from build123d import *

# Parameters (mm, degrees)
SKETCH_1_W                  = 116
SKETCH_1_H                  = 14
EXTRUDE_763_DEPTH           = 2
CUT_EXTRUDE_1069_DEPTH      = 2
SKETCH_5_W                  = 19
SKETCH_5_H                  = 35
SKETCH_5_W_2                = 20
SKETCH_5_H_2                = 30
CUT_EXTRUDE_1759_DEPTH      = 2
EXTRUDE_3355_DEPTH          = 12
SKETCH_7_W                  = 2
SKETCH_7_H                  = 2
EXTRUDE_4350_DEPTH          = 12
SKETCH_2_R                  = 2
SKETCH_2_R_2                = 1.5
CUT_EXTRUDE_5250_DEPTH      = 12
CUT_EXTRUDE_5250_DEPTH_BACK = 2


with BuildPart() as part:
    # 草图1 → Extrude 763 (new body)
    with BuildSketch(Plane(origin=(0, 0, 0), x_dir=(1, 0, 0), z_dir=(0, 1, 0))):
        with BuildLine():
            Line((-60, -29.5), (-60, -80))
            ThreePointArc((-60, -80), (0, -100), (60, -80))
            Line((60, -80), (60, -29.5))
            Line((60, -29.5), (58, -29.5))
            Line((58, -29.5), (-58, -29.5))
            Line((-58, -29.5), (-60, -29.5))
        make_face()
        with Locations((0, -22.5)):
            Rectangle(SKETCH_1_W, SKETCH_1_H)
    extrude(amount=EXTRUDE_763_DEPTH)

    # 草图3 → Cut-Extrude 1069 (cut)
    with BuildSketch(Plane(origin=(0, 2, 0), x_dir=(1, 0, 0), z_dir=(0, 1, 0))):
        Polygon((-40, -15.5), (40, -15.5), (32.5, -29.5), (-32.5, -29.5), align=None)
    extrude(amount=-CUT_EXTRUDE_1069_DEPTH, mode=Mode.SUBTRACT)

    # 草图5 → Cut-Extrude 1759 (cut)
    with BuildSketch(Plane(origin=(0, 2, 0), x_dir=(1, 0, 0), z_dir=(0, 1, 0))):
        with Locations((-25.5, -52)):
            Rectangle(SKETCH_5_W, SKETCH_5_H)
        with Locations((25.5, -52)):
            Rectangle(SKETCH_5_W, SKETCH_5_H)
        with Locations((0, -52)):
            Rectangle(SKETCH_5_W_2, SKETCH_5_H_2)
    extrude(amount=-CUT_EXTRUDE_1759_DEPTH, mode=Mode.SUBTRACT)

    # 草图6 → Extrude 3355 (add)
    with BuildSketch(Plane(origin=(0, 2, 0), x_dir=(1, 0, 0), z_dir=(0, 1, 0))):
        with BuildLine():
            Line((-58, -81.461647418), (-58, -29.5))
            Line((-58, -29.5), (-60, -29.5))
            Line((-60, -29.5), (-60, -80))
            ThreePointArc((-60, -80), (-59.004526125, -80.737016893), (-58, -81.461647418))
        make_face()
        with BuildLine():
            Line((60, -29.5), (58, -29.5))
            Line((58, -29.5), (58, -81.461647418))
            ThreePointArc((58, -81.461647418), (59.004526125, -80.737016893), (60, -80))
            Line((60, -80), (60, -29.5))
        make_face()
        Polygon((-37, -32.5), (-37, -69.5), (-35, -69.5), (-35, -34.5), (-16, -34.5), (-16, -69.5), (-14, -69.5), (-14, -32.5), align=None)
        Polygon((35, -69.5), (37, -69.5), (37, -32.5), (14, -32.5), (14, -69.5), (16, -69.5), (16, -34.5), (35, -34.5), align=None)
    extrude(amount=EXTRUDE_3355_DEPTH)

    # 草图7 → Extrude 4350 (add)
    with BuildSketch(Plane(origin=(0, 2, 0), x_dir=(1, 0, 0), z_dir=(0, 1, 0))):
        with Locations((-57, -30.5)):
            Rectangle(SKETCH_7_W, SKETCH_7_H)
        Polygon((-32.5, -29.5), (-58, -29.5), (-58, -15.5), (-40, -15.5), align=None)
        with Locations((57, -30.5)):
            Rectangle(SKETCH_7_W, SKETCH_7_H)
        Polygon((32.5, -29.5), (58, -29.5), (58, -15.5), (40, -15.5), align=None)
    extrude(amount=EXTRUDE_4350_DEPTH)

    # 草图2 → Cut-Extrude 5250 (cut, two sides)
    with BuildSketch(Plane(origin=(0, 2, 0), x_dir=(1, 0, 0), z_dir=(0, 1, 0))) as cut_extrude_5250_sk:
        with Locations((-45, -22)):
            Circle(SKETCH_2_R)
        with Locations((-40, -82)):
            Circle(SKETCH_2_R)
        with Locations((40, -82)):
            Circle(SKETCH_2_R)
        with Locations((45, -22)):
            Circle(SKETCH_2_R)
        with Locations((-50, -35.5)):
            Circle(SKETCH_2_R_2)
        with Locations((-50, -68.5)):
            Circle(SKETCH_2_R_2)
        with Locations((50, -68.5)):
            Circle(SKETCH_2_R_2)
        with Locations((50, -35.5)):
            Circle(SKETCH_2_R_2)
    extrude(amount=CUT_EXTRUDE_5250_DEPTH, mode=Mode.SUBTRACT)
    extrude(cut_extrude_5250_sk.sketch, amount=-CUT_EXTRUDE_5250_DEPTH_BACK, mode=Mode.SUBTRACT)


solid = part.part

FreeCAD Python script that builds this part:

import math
import FreeCAD as App
import Part
import Sketcher
Q = App.Units.Quantity

doc = App.newDocument("Part")
params = doc.addObject("Spreadsheet::Sheet", "Params")
for row, (alias, value) in enumerate([
    ("sketch1_radius", "100 mm"),
    ("sketch1_width", "2 mm"),
    ("sketch1_width2", "116 mm"),
    ("sketch1_height", "14 mm"),
    ("sketch1_height2", "50.5 mm"),
    ("pad1_length", "2 mm"),
    ("sketch2_width", "80 mm"),
    ("sketch2_width2", "65 mm"),
    ("pocket1_length", "2 mm"),
    ("sketch3_width", "19 mm"),
    ("sketch3_width2", "20 mm"),
    ("sketch3_height", "35 mm"),
    ("sketch3_height2", "30 mm"),
    ("pocket2_length", "2 mm"),
    ("sketch4_radius", "100.000001 mm"),
    ("sketch4_width", "2 mm"),
    ("sketch4_width2", "19 mm"),
    ("sketch4_height", "37 mm"),
    ("sketch4_height2", "35 mm"),
    ("pad2_length", "12 mm"),
    ("sketch5_width", "2 mm"),
    ("sketch5_width2", "18 mm"),
    ("sketch5_height", "16 mm"),
    ("sketch5_width3", "23.5 mm"),
    ("pad3_length", "12 mm"),
    ("sketch6_diameter", "4 mm"),
    ("sketch6_diameter2", "3 mm"),
], start=1):
    params.set(f"A{row}", alias)
    params.set(f"B{row}", "=" + value)
    params.setAlias(f"B{row}", alias)

body = doc.addObject("PartDesign::Body", "Body")

# Sketch on XZ plane
sketch1 = body.newObject("Sketcher::SketchObject", "Sketch")
sketch1.AttachmentSupport = (doc.getObject("XZ_Plane"), [""])
sketch1.MapMode = "FlatFace"
sketch1.addGeometry([
    Part.LineSegment(App.Vector(-60, 29.5, 0), App.Vector(-60, 80, 0)),  # 0
    Part.ArcOfCircle(Part.Circle(App.Vector(0, 0, 0), App.Vector(0, 0, 1), 100), math.radians(53), math.radians(127)),  # 1
    Part.LineSegment(App.Vector(60, 80, 0), App.Vector(60, 29.5, 0)),  # 2
    Part.LineSegment(App.Vector(60, 29.5, 0), App.Vector(58, 29.5, 0)),  # 3
    Part.LineSegment(App.Vector(58, 29.5, 0), App.Vector(58, 15.5, 0)),  # 4
    Part.LineSegment(App.Vector(58, 15.5, 0), App.Vector(-58, 15.5, 0)),  # 5
    Part.LineSegment(App.Vector(-58, 15.5, 0), App.Vector(-58, 29.5, 0)),  # 6
    Part.LineSegment(App.Vector(-58, 29.5, 0), App.Vector(-60, 29.5, 0)),  # 7
], False)
sketch1.addConstraint([
    Sketcher.Constraint("Coincident", 0, 2, 1, 2),
    Sketcher.Constraint("Coincident", 1, 1, 2, 1),
    Sketcher.Constraint("Coincident", 2, 2, 3, 1),
    Sketcher.Constraint("Coincident", 3, 2, 4, 1),
    Sketcher.Constraint("Coincident", 4, 2, 5, 1),
    Sketcher.Constraint("Coincident", 5, 2, 6, 1),
    Sketcher.Constraint("Coincident", 6, 2, 7, 1),
    Sketcher.Constraint("Coincident", 7, 2, 0, 1),
    Sketcher.Constraint("Vertical", 0),
    Sketcher.Constraint("Vertical", 2),
    Sketcher.Constraint("Horizontal", 3),
    Sketcher.Constraint("Vertical", 4),
    Sketcher.Constraint("Horizontal", 5),
    Sketcher.Constraint("Vertical", 6),
    Sketcher.Constraint("Horizontal", 7),
    Sketcher.Constraint("Coincident", 1, 3, -1, 1),
    Sketcher.Constraint("Symmetric", 3, 2, 6, 2, -2),
    Sketcher.Constraint("Horizontal", 0, 2, 1, 1),
    Sketcher.Constraint("Radius", 1, Q("100 mm")),
    Sketcher.Constraint("DistanceX", 3, 2, 3, 1, Q("2 mm")),
    Sketcher.Constraint("DistanceX", 5, 2, 5, 1, Q("116 mm")),
    Sketcher.Constraint("DistanceY", 4, 2, 4, 1, Q("14 mm")),
    Sketcher.Constraint("DistanceY", 0, 1, 0, 2, Q("50.5 mm")),
])
sketch1.setExpression("Constraints[18]", "Params.sketch1_radius")
sketch1.setExpression("Constraints[19]", "Params.sketch1_width")
sketch1.setExpression("Constraints[20]", "Params.sketch1_width2")
sketch1.setExpression("Constraints[21]", "Params.sketch1_height")
sketch1.setExpression("Constraints[22]", "Params.sketch1_height2")
pad1 = body.newObject("PartDesign::Pad", "Pad")
pad1.Profile = sketch1
pad1.setExpression("Length", "Params.pad1_length")
pad1.Reversed = True

# Sketch on XZ plane
sketch2 = body.newObject("Sketcher::SketchObject", "Sketch001")
sketch2.AttachmentSupport = (doc.getObject("XZ_Plane"), [""])
sketch2.MapMode = "FlatFace"
sketch2.AttachmentOffset = App.Placement(App.Vector(0, 0, -2), App.Rotation())
sketch2.addGeometry([
    Part.LineSegment(App.Vector(40, 16, 0), App.Vector(-40, 16, 0)),
    Part.LineSegment(App.Vector(-40, 16, 0), App.Vector(-32, 30, 0)),
    Part.LineSegment(App.Vector(-32, 30, 0), App.Vector(32, 30, 0)),
    Part.LineSegment(App.Vector(32, 30, 0), App.Vector(40, 16, 0)),
], False)
sketch2.addConstraint([
    Sketcher.Constraint("Coincident", 0, 2, 1, 1),
    Sketcher.Constraint("Coincident", 1, 2, 2, 1),
    Sketcher.Constraint("Coincident", 2, 2, 3, 1),
    Sketcher.Constraint("Coincident", 3, 2, 0, 1),
    Sketcher.Constraint("Horizontal", 0),
    Sketcher.Constraint("Horizontal", 2),
    Sketcher.Constraint("Equal", 1, 3),
    Sketcher.Constraint("DistanceX", 0, 2, 0, 1, Q("80 mm")),
    Sketcher.Constraint("DistanceX", 2, 1, 2, 2, Q("65 mm")),
    Sketcher.Constraint("DistanceX", 0, 2, -1, 1, Q("40 mm")),
    Sketcher.Constraint("DistanceY", 0, 2, 1, 2, Q("14 mm")),
    Sketcher.Constraint("DistanceY", -1, 1, 0, 2, Q("15.5 mm")),
])
sketch2.setExpression("Constraints[7]", "Params.sketch2_width")
sketch2.setExpression("Constraints[8]", "Params.sketch2_width2")
pocket1 = body.newObject("PartDesign::Pocket", "Pocket")
pocket1.Profile = sketch2
pocket1.setExpression("Length", "Params.pocket1_length")
pocket1.Reversed = True

# Sketch on XZ plane
sketch3 = body.newObject("Sketcher::SketchObject", "Sketch002")
sketch3.AttachmentSupport = (doc.getObject("XZ_Plane"), [""])
sketch3.MapMode = "FlatFace"
sketch3.AttachmentOffset = App.Placement(App.Vector(0, 0, -2), App.Rotation())
sketch3.addGeometry([
    Part.LineSegment(App.Vector(-35, 34, 0), App.Vector(-35, 70, 0)),  # 0
    Part.LineSegment(App.Vector(-35, 70, 0), App.Vector(-16, 70, 0)),  # 1
    Part.LineSegment(App.Vector(-16, 70, 0), App.Vector(-16, 34, 0)),  # 2
    Part.LineSegment(App.Vector(-16, 34, 0), App.Vector(-35, 34, 0)),  # 3
    Part.LineSegment(App.Vector(16, 34, 0), App.Vector(16, 70, 0)),  # 4
    Part.LineSegment(App.Vector(16, 70, 0), App.Vector(35, 70, 0)),  # 5
    Part.LineSegment(App.Vector(35, 70, 0), App.Vector(35, 34, 0)),  # 6
    Part.LineSegment(App.Vector(35, 34, 0), App.Vector(16, 34, 0)),  # 7
    Part.LineSegment(App.Vector(-10, 37, 0), App.Vector(-10, 67, 0)),  # 8
    Part.LineSegment(App.Vector(-10, 67, 0), App.Vector(10, 67, 0)),  # 9
    Part.LineSegment(App.Vector(10, 67, 0), App.Vector(10, 37, 0)),  # 10
    Part.LineSegment(App.Vector(10, 37, 0), App.Vector(-10, 37, 0)),  # 11
], False)
sketch3.addConstraint([
    Sketcher.Constraint("Coincident", 0, 2, 1, 1),
    Sketcher.Constraint("Coincident", 1, 2, 2, 1),
    Sketcher.Constraint("Coincident", 2, 2, 3, 1),
    Sketcher.Constraint("Coincident", 3, 2, 0, 1),
    Sketcher.Constraint("Coincident", 4, 2, 5, 1),
    Sketcher.Constraint("Coincident", 5, 2, 6, 1),
    Sketcher.Constraint("Coincident", 6, 2, 7, 1),
    Sketcher.Constraint("Coincident", 7, 2, 4, 1),
    Sketcher.Constraint("Coincident", 8, 2, 9, 1),
    Sketcher.Constraint("Coincident", 9, 2, 10, 1),
    Sketcher.Constraint("Coincident", 10, 2, 11, 1),
    Sketcher.Constraint("Coincident", 11, 2, 8, 1),
    Sketcher.Constraint("Vertical", 0),
    Sketcher.Constraint("Horizontal", 1),
    Sketcher.Constraint("Vertical", 2),
    Sketcher.Constraint("Horizontal", 3),
    Sketcher.Constraint("Vertical", 4),
    Sketcher.Constraint("Horizontal", 5),
    Sketcher.Constraint("Vertical", 6),
    Sketcher.Constraint("Horizontal", 7),
    Sketcher.Constraint("Vertical", 8),
    Sketcher.Constraint("Horizontal", 9),
    Sketcher.Constraint("Vertical", 10),
    Sketcher.Constraint("Horizontal", 11),
    Sketcher.Constraint("Symmetric", 1, 2, 4, 2, -2),
    Sketcher.Constraint("Symmetric", 3, 2, 6, 2, -2),
    Sketcher.Constraint("DistanceX", 1, 1, 1, 2, Q("19 mm")),
    Sketcher.Constraint("DistanceX", 9, 1, 9, 2, Q("20 mm")),
    Sketcher.Constraint("DistanceY", 0, 1, 0, 2, Q("35 mm")),
    Sketcher.Constraint("DistanceY", 8, 1, 8, 2, Q("30 mm")),
    Sketcher.Constraint("DistanceX", 0, 2, -1, 1, Q("35 mm")),
    Sketcher.Constraint("DistanceX", 8, 2, -1, 1, Q("10 mm")),
    Sketcher.Constraint("DistanceY", -1, 1, 8, 2, Q("67 mm")),
    Sketcher.Constraint("DistanceY", -1, 1, 0, 2, Q("69.5 mm")),
])
sketch3.setExpression("Constraints[26]", "Params.sketch3_width")
sketch3.setExpression("Constraints[27]", "Params.sketch3_width2")
sketch3.setExpression("Constraints[28]", "Params.sketch3_height")
sketch3.setExpression("Constraints[29]", "Params.sketch3_height2")
pocket2 = body.newObject("PartDesign::Pocket", "Pocket001")
pocket2.Profile = sketch3
pocket2.setExpression("Length", "Params.pocket2_length")
pocket2.Reversed = True

# Sketch on XZ plane
sketch4 = body.newObject("Sketcher::SketchObject", "Sketch003")
sketch4.AttachmentSupport = (doc.getObject("XZ_Plane"), [""])
sketch4.MapMode = "FlatFace"
sketch4.AttachmentOffset = App.Placement(App.Vector(0, 0, -2), App.Rotation())
sketch4.addGeometry([
    Part.LineSegment(App.Vector(-58, 81.5, 0), App.Vector(-58, 29.5, 0)),  # 0
    Part.LineSegment(App.Vector(-58, 29.5, 0), App.Vector(-60, 29.5, 0)),  # 1
    Part.LineSegment(App.Vector(-60, 29.5, 0), App.Vector(-60, 80, 0)),  # 2
    Part.ArcOfCircle(Part.Circle(App.Vector(0, 0, 0), App.Vector(0, 0, 1), 100), math.radians(125.45), math.radians(126.87)),  # 3
    Part.LineSegment(App.Vector(60, 29.5, 0), App.Vector(58, 29.5, 0)),  # 4
    Part.LineSegment(App.Vector(58, 29.5, 0), App.Vector(58, 81.5, 0)),  # 5
    Part.ArcOfCircle(Part.Circle(App.Vector(0, 0, 0), App.Vector(0, 0, 1), 100), math.radians(53.13), math.radians(54.55)),  # 6
    Part.LineSegment(App.Vector(60, 80, 0), App.Vector(60, 29.5, 0)),  # 7
    Part.LineSegment(App.Vector(-37, 32.5, 0), App.Vector(-37, 69.5, 0)),  # 8
    Part.LineSegment(App.Vector(-37, 69.5, 0), App.Vector(-35, 69.5, 0)),  # 9
    Part.LineSegment(App.Vector(-35, 69.5, 0), App.Vector(-35, 34.5, 0)),  # 10
    Part.LineSegment(App.Vector(-35, 34.5, 0), App.Vector(-16, 34.5, 0)),  # 11
    Part.LineSegment(App.Vector(-16, 34.5, 0), App.Vector(-16, 69.5, 0)),  # 12
    Part.LineSegment(App.Vector(-16, 69.5, 0), App.Vector(-14, 69.5, 0)),  # 13
    Part.LineSegment(App.Vector(-14, 69.5, 0), App.Vector(-14, 32.5, 0)),  # 14
    Part.LineSegment(App.Vector(-14, 32.5, 0), App.Vector(-37, 32.5, 0)),  # 15
    Part.LineSegment(App.Vector(35, 69.5, 0), App.Vector(37, 69.5, 0)),  # 16
    Part.LineSegment(App.Vector(37, 69.5, 0), App.Vector(37, 32.5, 0)),  # 17
    Part.LineSegment(App.Vector(37, 32.5, 0), App.Vector(14, 32.5, 0)),  # 18
    Part.LineSegment(App.Vector(14, 32.5, 0), App.Vector(14, 69.5, 0)),  # 19
    Part.LineSegment(App.Vector(14, 69.5, 0), App.Vector(16, 69.5, 0)),  # 20
    Part.LineSegment(App.Vector(16, 69.5, 0), App.Vector(16, 34.5, 0)),  # 21
    Part.LineSegment(App.Vector(16, 34.5, 0), App.Vector(35, 34.5, 0)),  # 22
    Part.LineSegment(App.Vector(35, 34.5, 0), App.Vector(35, 69.5, 0)),  # 23
], False)
sketch4.addConstraint([
    Sketcher.Constraint("Coincident", 0, 2, 1, 1),
    Sketcher.Constraint("Coincident", 1, 2, 2, 1),
    Sketcher.Constraint("Coincident", 2, 2, 3, 2),
    Sketcher.Constraint("Coincident", 3, 1, 0, 1),
    Sketcher.Constraint("Coincident", 4, 2, 5, 1),
    Sketcher.Constraint("Coincident", 5, 2, 6, 2),
    Sketcher.Constraint("Coincident", 6, 1, 7, 1),
    Sketcher.Constraint("Coincident", 7, 2, 4, 1),
    Sketcher.Constraint("Coincident", 8, 2, 9, 1),
    Sketcher.Constraint("Coincident", 9, 2, 10, 1),
    Sketcher.Constraint("Coincident", 10, 2, 11, 1),
    Sketcher.Constraint("Coincident", 11, 2, 12, 1),
    Sketcher.Constraint("Coincident", 12, 2, 13, 1),
    Sketcher.Constraint("Coincident", 13, 2, 14, 1),
    Sketcher.Constraint("Coincident", 14, 2, 15, 1),
    Sketcher.Constraint("Coincident", 15, 2, 8, 1),
    Sketcher.Constraint("Coincident", 16, 2, 17, 1),
    Sketcher.Constraint("Coincident", 17, 2, 18, 1),
    Sketcher.Constraint("Coincident", 18, 2, 19, 1),
    Sketcher.Constraint("Coincident", 19, 2, 20, 1),
    Sketcher.Constraint("Coincident", 20, 2, 21, 1),
    Sketcher.Constraint("Coincident", 21, 2, 22, 1),
    Sketcher.Constraint("Coincident", 22, 2, 23, 1),
    Sketcher.Constraint("Coincident", 23, 2, 16, 1),
    Sketcher.Constraint("Vertical", 0),
    Sketcher.Constraint("Horizontal", 1),
    Sketcher.Constraint("Vertical", 2),
    Sketcher.Constraint("Horizontal", 4),
    Sketcher.Constraint("Vertical", 5),
    Sketcher.Constraint("Vertical", 7),
    Sketcher.Constraint("Vertical", 8),
    Sketcher.Constraint("Horizontal", 9),
    Sketcher.Constraint("Vertical", 10),
    Sketcher.Constraint("Horizontal", 11),
    Sketcher.Constraint("Vertical", 12),
    Sketcher.Constraint("Horizontal", 13),
    Sketcher.Constraint("Vertical", 14),
    Sketcher.Constraint("Horizontal", 15),
    Sketcher.Constraint("Horizontal", 16),
    Sketcher.Constraint("Vertical", 17),
    Sketcher.Constraint("Horizontal", 18),
    Sketcher.Constraint("Vertical", 19),
    Sketcher.Constraint("Horizontal", 20),
    Sketcher.Constraint("Vertical", 21),
    Sketcher.Constraint("Horizontal", 22),
    Sketcher.Constraint("Vertical", 23),
    Sketcher.Constraint("Coincident", 3, 3, -1, 1),
    Sketcher.Constraint("Coincident", 6, 3, -1, 1),
    Sketcher.Constraint("Equal", 3, 6),
    Sketcher.Constraint("Symmetric", 0, 2, 4, 2, -2),
    Sketcher.Constraint("Symmetric", 8, 2, 16, 2, -2),
    Sketcher.Constraint("Symmetric", 14, 2, 18, 2, -2),
    Sketcher.Constraint("Symmetric", 12, 2, 20, 2, -2),
    Sketcher.Constraint("Symmetric", 10, 2, 22, 2, -2),
    Sketcher.Constraint("Horizontal", 2, 2, 6, 1),
    Sketcher.Constraint("Horizontal", 9, 2, 12, 2),
    Sketcher.Constraint("Equal", 4, 9),
    Sketcher.Constraint("Equal", 9, 13),
    Sketcher.Constraint("Radius", 3, Q("100.000001 mm")),
    Sketcher.Constraint("DistanceX", 1, 2, 1, 1, Q("2 mm")),
    Sketcher.Constraint("DistanceX", 11, 1, 11, 2, Q("19 mm")),
    Sketcher.Constraint("DistanceY", 8, 1, 8, 2, Q("37 mm")),
    Sketcher.Constraint("DistanceY", 10, 2, 10, 1, Q("35 mm")),
    Sketcher.Constraint("DistanceY", 2, 1, 2, 2, Q("50.5 mm")),
    Sketcher.Constraint("DistanceX", 0, 2, -1, 1, Q("58 mm")),
    Sketcher.Constraint("DistanceX", 8, 2, -1, 1, Q("37 mm")),
    Sketcher.Constraint("DistanceY", 0, 2, 8, 2, Q("40 mm")),
])
sketch4.setExpression("Constraints[58]", "Params.sketch4_radius")
sketch4.setExpression("Constraints[59]", "Params.sketch4_width")
sketch4.setExpression("Constraints[60]", "Params.sketch4_width2")
sketch4.setExpression("Constraints[61]", "Params.sketch4_height")
sketch4.setExpression("Constraints[62]", "Params.sketch4_height2")
pad2 = body.newObject("PartDesign::Pad", "Pad001")
pad2.Profile = sketch4
pad2.setExpression("Length", "Params.pad2_length")
pad2.Reversed = True

# Sketch on XZ plane
sketch5 = body.newObject("Sketcher::SketchObject", "Sketch004")
sketch5.AttachmentSupport = (doc.getObject("XZ_Plane"), [""])
sketch5.MapMode = "FlatFace"
sketch5.AttachmentOffset = App.Placement(App.Vector(0, 0, -2), App.Rotation())
sketch5.addGeometry([
    Part.LineSegment(App.Vector(-58, 31.5, 0), App.Vector(-56, 31.5, 0)),  # 0
    Part.LineSegment(App.Vector(-56, 31.5, 0), App.Vector(-56, 29.5, 0)),  # 1
    Part.LineSegment(App.Vector(-56, 29.5, 0), App.Vector(-32.5, 29.5, 0)),  # 2
    Part.LineSegment(App.Vector(-32.5, 29.5, 0), App.Vector(-40, 15.5, 0)),  # 3
    Part.LineSegment(App.Vector(-40, 15.5, 0), App.Vector(-58, 15.5, 0)),  # 4
    Part.LineSegment(App.Vector(-58, 15.5, 0), App.Vector(-58, 31.5, 0)),  # 5
    Part.LineSegment(App.Vector(56, 29.5, 0), App.Vector(56, 31.5, 0)),  # 6
    Part.LineSegment(App.Vector(56, 31.5, 0), App.Vector(58, 31.5, 0)),  # 7
    Part.LineSegment(App.Vector(58, 31.5, 0), App.Vector(58, 15.5, 0)),  # 8
    Part.LineSegment(App.Vector(58, 15.5, 0), App.Vector(40, 15.5, 0)),  # 9
    Part.LineSegment(App.Vector(40, 15.5, 0), App.Vector(32.5, 29.5, 0)),  # 10
    Part.LineSegment(App.Vector(32.5, 29.5, 0), App.Vector(56, 29.5, 0)),  # 11
], False)
sketch5.addConstraint([
    Sketcher.Constraint("Coincident", 0, 2, 1, 1),
    Sketcher.Constraint("Coincident", 1, 2, 2, 1),
    Sketcher.Constraint("Coincident", 2, 2, 3, 1),
    Sketcher.Constraint("Coincident", 3, 2, 4, 1),
    Sketcher.Constraint("Coincident", 4, 2, 5, 1),
    Sketcher.Constraint("Coincident", 5, 2, 0, 1),
    Sketcher.Constraint("Coincident", 6, 2, 7, 1),
    Sketcher.Constraint("Coincident", 7, 2, 8, 1),
    Sketcher.Constraint("Coincident", 8, 2, 9, 1),
    Sketcher.Constraint("Coincident", 9, 2, 10, 1),
    Sketcher.Constraint("Coincident", 10, 2, 11, 1),
    Sketcher.Constraint("Coincident", 11, 2, 6, 1),
    Sketcher.Constraint("Horizontal", 0),
    Sketcher.Constraint("Vertical", 1),
    Sketcher.Constraint("Horizontal", 2),
    Sketcher.Constraint("Horizontal", 4),
    Sketcher.Constraint("Vertical", 5),
    Sketcher.Constraint("Vertical", 6),
    Sketcher.Constraint("Horizontal", 7),
    Sketcher.Constraint("Vertical", 8),
    Sketcher.Constraint("Horizontal", 9),
    Sketcher.Constraint("Horizontal", 11),
    Sketcher.Constraint("Symmetric", 0, 2, 6, 2, -2),
    Sketcher.Constraint("Symmetric", 4, 2, 8, 2, -2),
    Sketcher.Constraint("Symmetric", 2, 2, 10, 2, -2),
    Sketcher.Constraint("Equal", 4, 9),
    Sketcher.Constraint("Equal", 7, 1),
    Sketcher.Constraint("DistanceX", 0, 1, 0, 2, Q("2 mm")),
    Sketcher.Constraint("DistanceX", 4, 2, 4, 1, Q("18 mm")),
    Sketcher.Constraint("DistanceY", 5, 1, 5, 2, Q("16 mm")),
    Sketcher.Constraint("DistanceX", 2, 1, 2, 2, Q("23.5 mm")),
    Sketcher.Constraint("DistanceX", 0, 2, -1, 1, Q("56 mm")),
    Sketcher.Constraint("DistanceY", -1, 1, 0, 2, Q("31.5 mm")),
])
sketch5.setExpression("Constraints[27]", "Params.sketch5_width")
sketch5.setExpression("Constraints[28]", "Params.sketch5_width2")
sketch5.setExpression("Constraints[29]", "Params.sketch5_height")
sketch5.setExpression("Constraints[30]", "Params.sketch5_width3")
pad3 = body.newObject("PartDesign::Pad", "Pad002")
pad3.Profile = sketch5
pad3.setExpression("Length", "Params.pad3_length")
pad3.Reversed = True

# Sketch on XZ plane
sketch6 = body.newObject("Sketcher::SketchObject", "Sketch005")
sketch6.AttachmentSupport = (doc.getObject("XZ_Plane"), [""])
sketch6.MapMode = "FlatFace"
sketch6.AttachmentOffset = App.Placement(App.Vector(0, 0, -2), App.Rotation())
sketch6.addGeometry([
    Part.Circle(App.Vector(-45, 22, 0), App.Vector(0, 0, 1), 2),  # 0
    Part.Circle(App.Vector(-40, 82, 0), App.Vector(0, 0, 1), 2),  # 1
    Part.Circle(App.Vector(40, 82, 0), App.Vector(0, 0, 1), 2),  # 2
    Part.Circle(App.Vector(45, 22, 0), App.Vector(0, 0, 1), 2),  # 3
    Part.Circle(App.Vector(-50, 35.5, 0), App.Vector(0, 0, 1), 1.5),  # 4
    Part.Circle(App.Vector(-50, 68.5, 0), App.Vector(0, 0, 1), 1.5),  # 5
    Part.Circle(App.Vector(50, 68.5, 0), App.Vector(0, 0, 1), 1.5),  # 6
    Part.Circle(App.Vector(50, 35.5, 0), App.Vector(0, 0, 1), 1.5),  # 7
], False)
sketch6.addConstraint([
    Sketcher.Constraint("Equal", 0, 1),
    Sketcher.Constraint("Equal", 1, 2),
    Sketcher.Constraint("Equal", 2, 3),
    Sketcher.Constraint("Equal", 4, 5),
    Sketcher.Constraint("Equal", 5, 6),
    Sketcher.Constraint("Equal", 6, 7),
    Sketcher.Constraint("Symmetric", 1, 3, 2, 3, -2),
    Sketcher.Constraint("Symmetric", 0, 3, 3, 3, -2),
    Sketcher.Constraint("Symmetric", 5, 3, 6, 3, -2),
    Sketcher.Constraint("Symmetric", 4, 3, 7, 3, -2),
    Sketcher.Constraint("Vertical", 4, 3, 5, 3),
    Sketcher.Constraint("Diameter", 0, Q("4 mm")),
    Sketcher.Constraint("Diameter", 4, Q("3 mm")),
    Sketcher.Constraint("DistanceX", 0, 3, -1, 1, Q("45 mm")),
    Sketcher.Constraint("DistanceY", -1, 1, 0, 3, Q("22 mm")),
    Sketcher.Constraint("DistanceX", 1, 3, -1, 1, Q("40 mm")),
    Sketcher.Constraint("DistanceY", -1, 1, 1, 3, Q("82 mm")),
    Sketcher.Constraint("DistanceX", 4, 3, -1, 1, Q("50 mm")),
    Sketcher.Constraint("DistanceY", 4, 3, 5, 3, Q("33 mm")),
    Sketcher.Constraint("DistanceY", -1, 1, 4, 3, Q("35.5 mm")),
])
sketch6.setExpression("Constraints[11]", "Params.sketch6_diameter")
sketch6.setExpression("Constraints[12]", "Params.sketch6_diameter2")
pocket3 = body.newObject("PartDesign::Pocket", "Pocket002")
pocket3.Profile = sketch6
pocket3.Type = "ThroughAll"
pocket3.Midplane = True

doc.recompute()
